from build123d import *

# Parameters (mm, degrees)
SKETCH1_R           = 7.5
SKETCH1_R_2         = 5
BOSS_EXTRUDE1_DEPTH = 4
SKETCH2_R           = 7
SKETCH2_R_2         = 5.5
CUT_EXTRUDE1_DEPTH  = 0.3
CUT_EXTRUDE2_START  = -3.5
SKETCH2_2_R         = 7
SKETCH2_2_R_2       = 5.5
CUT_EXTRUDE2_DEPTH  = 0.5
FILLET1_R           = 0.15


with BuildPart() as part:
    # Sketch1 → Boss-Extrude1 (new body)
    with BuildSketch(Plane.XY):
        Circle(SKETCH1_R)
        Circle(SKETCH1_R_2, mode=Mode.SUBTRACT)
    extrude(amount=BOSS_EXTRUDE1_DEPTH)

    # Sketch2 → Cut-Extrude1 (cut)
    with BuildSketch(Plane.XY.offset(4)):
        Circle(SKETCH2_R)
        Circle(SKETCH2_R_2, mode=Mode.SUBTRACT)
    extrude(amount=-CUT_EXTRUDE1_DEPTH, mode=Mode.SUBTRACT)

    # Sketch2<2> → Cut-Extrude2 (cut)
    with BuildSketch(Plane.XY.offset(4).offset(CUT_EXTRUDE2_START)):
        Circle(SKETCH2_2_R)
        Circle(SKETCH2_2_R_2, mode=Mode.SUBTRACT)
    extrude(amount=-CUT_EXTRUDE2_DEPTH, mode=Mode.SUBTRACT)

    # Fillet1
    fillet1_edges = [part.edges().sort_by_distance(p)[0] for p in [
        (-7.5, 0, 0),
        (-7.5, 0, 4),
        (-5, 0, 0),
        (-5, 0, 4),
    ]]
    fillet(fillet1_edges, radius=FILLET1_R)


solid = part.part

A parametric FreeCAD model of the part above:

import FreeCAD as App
import Part
import Sketcher
from FreeCAD import Vector


def edges_at(feature, points):
    """Names of the edges that pass closest to the given points."""
    edges = feature.Shape.Edges
    near = lambda p: min(range(len(edges)), key=lambda i: edges[i].distToShape(Part.Vertex(*p))[0])
    return sorted({f"Edge{near(p) + 1}" for p in points})

doc = App.newDocument("Part")
body = doc.addObject("PartDesign::Body", "Body")

# Sketch on XY plane
sketch1 = body.newObject("Sketcher::SketchObject", "Sketch")
sketch1.AttachmentSupport = (doc.getObject("XY_Plane"), [""])
sketch1.MapMode = "FlatFace"
sketch1.addGeometry([
    Part.Circle(Vector(0, 0, 0), Vector(0, 0, 1), 8),
    Part.Circle(Vector(0, 0, 0), Vector(0, 0, 1), 5),
], False)
sketch1.addConstraint([
    Sketcher.Constraint("Coincident", 0, 3, -1, 1),
    Sketcher.Constraint("Coincident", 1, 3, -1, 1),
    Sketcher.Constraint("Diameter", 0, 15.0),
    Sketcher.Constraint("Diameter", 1, 10.0),
])
pad1 = body.newObject("PartDesign::Pad", "Pad")
pad1.Profile = sketch1
pad1.Length = 4

# Sketch on XY plane
sketch2 = body.newObject("Sketcher::SketchObject", "Sketch001")
sketch2.AttachmentSupport = (doc.getObject("XY_Plane"), [""])
sketch2.MapMode = "FlatFace"
sketch2.AttachmentOffset = App.Placement(Vector(0, 0, 4), App.Rotation())
sketch2.addGeometry([
    Part.Circle(Vector(0, 0, 0), Vector(0, 0, 1), 7),
    Part.Circle(Vector(0, 0, 0), Vector(0, 0, 1), 6),
], False)
sketch2.addConstraint([
    Sketcher.Constraint("Coincident", 0, 3, -1, 1),
    Sketcher.Constraint("Coincident", 1, 3, -1, 1),
    Sketcher.Constraint("Diameter", 0, 14.0),
    Sketcher.Constraint("Diameter", 1, 11.0),
])
pocket1 = body.newObject("PartDesign::Pocket", "Pocket")
pocket1.Profile = sketch2
pocket1.Length = 0.3

# Sketch on XY plane
sketch3 = body.newObject("Sketcher::SketchObject", "Sketch002")
sketch3.AttachmentSupport = (doc.getObject("XY_Plane"), [""])
sketch3.MapMode = "FlatFace"
sketch3.AttachmentOffset = App.Placement(Vector(0, 0, 0.5), App.Rotation())
sketch3.addGeometry([
    Part.Circle(Vector(0, 0, 0), Vector(0, 0, 1), 7),
    Part.Circle(Vector(0, 0, 0), Vector(0, 0, 1), 6),
], False)
sketch3.addConstraint([
    Sketcher.Constraint("Coincident", 0, 3, -1, 1),
    Sketcher.Constraint("Coincident", 1, 3, -1, 1),
    Sketcher.Constraint("Diameter", 0, 14.0),
    Sketcher.Constraint("Diameter", 1, 11.0),
])
pocket2 = body.newObject("PartDesign::Pocket", "Pocket001")
pocket2.Profile = sketch3
pocket2.Length = 0.5
doc.recompute()

fillet = body.newObject("PartDesign::Fillet", "Fillet")
fillet.Base = (pocket2, edges_at(pocket2, [
    (-7.5, 0, 0),
    (-7.5, 0, 4),
    (-5, 0, 0),
    (-5, 0, 4),
]))
fillet.Radius = 0.15

doc.recompute()
